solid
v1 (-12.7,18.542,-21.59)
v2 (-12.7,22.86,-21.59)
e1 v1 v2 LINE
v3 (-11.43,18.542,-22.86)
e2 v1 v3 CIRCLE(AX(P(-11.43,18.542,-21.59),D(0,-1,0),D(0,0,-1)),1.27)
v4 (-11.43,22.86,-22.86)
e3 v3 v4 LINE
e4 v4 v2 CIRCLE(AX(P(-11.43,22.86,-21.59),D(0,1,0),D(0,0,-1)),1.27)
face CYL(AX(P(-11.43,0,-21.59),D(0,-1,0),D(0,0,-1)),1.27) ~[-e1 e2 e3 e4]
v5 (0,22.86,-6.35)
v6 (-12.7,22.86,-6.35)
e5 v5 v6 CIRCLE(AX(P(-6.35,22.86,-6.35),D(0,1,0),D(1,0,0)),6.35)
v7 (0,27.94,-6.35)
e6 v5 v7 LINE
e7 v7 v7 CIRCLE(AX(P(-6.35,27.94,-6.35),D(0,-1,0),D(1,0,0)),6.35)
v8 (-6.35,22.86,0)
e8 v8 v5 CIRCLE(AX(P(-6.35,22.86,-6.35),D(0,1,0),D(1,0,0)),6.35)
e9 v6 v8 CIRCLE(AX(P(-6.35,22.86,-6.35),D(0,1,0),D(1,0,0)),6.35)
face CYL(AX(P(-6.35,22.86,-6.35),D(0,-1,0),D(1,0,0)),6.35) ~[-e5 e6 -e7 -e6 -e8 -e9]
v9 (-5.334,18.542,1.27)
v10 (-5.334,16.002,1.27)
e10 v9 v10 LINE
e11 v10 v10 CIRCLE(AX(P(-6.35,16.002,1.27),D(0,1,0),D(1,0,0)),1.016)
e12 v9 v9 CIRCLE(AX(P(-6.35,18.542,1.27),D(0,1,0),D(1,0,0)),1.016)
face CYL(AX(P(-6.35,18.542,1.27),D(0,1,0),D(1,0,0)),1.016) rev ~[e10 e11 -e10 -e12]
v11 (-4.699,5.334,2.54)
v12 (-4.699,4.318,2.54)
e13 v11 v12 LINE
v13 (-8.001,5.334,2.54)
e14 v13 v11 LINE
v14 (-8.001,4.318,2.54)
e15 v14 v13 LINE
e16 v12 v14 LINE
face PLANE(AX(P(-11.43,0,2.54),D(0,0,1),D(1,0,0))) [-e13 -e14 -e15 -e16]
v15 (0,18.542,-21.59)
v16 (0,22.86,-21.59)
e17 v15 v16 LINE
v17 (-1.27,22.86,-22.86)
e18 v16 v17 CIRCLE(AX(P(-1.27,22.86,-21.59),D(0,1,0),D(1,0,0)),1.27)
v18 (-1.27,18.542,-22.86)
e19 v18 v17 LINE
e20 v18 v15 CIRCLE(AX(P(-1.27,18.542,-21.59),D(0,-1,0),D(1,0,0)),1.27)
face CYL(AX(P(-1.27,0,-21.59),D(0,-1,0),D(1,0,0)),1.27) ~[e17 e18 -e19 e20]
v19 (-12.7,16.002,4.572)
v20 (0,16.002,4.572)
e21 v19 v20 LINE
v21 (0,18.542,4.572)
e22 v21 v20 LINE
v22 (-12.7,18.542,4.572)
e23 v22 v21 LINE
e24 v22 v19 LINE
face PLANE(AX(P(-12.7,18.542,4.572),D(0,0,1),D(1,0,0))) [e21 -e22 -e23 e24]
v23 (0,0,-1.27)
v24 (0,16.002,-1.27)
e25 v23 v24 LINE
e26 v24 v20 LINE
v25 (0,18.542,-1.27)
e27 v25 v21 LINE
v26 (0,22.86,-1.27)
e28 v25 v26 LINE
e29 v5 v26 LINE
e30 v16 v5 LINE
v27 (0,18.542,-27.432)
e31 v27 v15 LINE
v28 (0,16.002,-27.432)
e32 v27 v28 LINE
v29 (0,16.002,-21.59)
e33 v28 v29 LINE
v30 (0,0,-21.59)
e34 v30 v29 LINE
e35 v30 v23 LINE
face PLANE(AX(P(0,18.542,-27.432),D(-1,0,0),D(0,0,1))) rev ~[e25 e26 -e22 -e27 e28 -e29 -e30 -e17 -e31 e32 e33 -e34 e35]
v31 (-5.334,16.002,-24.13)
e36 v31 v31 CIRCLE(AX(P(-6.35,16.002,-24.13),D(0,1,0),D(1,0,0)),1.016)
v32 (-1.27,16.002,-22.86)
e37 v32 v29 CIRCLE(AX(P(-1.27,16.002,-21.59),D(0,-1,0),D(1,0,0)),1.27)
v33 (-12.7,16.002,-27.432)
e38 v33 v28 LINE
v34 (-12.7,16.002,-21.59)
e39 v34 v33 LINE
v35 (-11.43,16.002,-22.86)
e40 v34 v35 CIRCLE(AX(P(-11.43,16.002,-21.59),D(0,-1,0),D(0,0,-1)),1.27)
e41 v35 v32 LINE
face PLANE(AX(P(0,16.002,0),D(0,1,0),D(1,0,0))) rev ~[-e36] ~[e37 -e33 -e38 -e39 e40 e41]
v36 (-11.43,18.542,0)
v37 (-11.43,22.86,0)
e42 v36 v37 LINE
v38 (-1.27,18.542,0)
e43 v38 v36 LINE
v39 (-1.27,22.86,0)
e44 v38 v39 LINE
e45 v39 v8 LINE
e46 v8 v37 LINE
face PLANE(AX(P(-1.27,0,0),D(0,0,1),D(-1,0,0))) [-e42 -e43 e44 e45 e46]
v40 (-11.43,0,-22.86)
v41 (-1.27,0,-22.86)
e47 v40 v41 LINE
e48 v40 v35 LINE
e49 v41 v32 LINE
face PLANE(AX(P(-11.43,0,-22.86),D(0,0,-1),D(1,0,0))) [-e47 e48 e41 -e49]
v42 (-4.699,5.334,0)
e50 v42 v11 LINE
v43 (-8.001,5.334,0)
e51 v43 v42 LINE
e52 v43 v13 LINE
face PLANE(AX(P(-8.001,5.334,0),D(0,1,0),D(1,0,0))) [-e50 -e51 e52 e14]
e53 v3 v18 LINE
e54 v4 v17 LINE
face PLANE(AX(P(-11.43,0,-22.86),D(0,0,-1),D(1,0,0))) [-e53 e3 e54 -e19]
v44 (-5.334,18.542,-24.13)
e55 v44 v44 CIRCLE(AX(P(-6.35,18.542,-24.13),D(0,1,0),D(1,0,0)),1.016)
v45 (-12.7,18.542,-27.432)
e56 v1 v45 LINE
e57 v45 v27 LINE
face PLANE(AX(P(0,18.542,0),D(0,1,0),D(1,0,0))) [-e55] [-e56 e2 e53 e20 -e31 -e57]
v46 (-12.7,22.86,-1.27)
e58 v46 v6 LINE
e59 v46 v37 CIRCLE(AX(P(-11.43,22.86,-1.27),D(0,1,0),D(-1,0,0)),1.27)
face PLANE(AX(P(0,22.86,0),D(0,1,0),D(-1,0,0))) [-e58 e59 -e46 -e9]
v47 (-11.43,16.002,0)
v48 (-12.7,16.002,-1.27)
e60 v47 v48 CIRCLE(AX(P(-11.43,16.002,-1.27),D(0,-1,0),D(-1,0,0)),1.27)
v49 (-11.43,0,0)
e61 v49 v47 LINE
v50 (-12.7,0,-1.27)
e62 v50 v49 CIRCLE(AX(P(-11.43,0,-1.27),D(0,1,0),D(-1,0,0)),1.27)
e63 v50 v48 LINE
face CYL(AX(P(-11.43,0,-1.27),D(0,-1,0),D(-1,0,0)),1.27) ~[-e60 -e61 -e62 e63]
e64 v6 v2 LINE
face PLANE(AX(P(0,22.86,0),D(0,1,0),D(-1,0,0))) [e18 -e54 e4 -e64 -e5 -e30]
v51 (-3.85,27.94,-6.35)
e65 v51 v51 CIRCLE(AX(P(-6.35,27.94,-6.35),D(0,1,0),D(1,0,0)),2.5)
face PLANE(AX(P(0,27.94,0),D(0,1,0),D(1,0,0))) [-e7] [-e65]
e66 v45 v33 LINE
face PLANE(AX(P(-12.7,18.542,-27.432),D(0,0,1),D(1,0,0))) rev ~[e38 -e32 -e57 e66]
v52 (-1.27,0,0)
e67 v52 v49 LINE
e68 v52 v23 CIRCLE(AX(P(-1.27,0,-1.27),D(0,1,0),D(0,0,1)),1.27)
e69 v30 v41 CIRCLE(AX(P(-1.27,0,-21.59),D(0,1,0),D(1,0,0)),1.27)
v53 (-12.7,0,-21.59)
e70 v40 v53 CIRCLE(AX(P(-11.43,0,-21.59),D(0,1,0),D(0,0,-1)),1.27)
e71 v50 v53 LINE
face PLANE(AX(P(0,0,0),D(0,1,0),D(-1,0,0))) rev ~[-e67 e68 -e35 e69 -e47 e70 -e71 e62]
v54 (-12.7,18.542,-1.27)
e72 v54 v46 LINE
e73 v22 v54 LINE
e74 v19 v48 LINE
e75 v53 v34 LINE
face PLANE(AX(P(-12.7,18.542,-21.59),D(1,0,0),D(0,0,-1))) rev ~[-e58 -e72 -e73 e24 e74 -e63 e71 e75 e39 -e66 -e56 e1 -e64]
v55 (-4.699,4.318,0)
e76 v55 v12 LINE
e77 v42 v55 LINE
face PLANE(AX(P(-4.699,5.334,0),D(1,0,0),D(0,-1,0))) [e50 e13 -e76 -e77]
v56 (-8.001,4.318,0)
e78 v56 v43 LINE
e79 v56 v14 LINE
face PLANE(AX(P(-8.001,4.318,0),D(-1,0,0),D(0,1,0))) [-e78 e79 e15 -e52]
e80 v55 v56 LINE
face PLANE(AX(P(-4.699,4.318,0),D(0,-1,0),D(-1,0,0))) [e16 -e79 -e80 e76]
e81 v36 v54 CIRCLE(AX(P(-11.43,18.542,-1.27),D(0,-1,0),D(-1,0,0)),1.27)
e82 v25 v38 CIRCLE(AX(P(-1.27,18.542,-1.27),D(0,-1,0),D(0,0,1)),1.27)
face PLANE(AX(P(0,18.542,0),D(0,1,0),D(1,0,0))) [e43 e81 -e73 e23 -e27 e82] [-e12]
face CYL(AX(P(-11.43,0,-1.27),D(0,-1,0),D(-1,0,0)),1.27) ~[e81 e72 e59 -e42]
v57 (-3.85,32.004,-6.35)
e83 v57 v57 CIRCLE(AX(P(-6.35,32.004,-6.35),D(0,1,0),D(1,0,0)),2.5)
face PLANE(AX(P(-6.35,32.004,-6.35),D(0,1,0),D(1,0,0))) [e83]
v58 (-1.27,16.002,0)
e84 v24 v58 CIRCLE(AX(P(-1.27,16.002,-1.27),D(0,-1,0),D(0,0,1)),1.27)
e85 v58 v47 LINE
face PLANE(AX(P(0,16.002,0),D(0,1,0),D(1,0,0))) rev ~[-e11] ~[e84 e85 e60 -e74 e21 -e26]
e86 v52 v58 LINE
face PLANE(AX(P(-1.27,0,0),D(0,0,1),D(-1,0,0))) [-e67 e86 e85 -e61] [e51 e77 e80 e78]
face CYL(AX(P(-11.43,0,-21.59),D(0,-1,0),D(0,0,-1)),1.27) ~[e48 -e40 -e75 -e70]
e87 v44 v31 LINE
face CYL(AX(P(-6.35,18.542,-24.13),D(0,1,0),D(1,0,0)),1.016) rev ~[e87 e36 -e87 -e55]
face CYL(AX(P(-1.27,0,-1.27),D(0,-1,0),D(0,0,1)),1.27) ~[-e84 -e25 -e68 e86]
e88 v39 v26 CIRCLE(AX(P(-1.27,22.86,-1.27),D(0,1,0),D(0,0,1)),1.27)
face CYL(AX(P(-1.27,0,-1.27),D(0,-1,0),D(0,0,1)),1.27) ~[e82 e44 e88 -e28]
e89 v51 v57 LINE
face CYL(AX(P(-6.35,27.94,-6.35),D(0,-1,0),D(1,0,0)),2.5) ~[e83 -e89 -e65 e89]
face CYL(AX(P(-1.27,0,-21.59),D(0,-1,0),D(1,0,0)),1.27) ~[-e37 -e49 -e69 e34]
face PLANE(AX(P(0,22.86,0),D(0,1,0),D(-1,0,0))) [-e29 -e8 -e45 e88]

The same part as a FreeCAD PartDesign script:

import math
import FreeCAD as App
import Part
import Sketcher

V = App.Vector
Q = App.Units.Quantity

doc = App.newDocument("Part")
params = doc.addObject("Spreadsheet::Sheet", "Params")
for row, (alias, value) in enumerate([
    ("sketch1_radius", "0.05 in"),
    ("pad1_length", "0.9 in"),
    ("sketch2_diameter", "0.5 in"),
    ("pad2_length", "0.2 in"),
    ("sketch3_diameter", "0.08 in"),
    ("sketch3_width", "0.5 in"),
    ("sketch3_height", "1.26 in"),
    ("pad3_length", "0.1 in"),
    ("sketch4_width", "0.13 in"),
    ("sketch4_height", "0.04 in"),
    ("pad4_length", "0.1 in"),
    ("pad5_length", "0.16 in"),
], start=1):
    params.set(f"A{row}", alias)
    params.set(f"B{row}", "=" + value)
    params.setAlias(f"B{row}", alias)

body = doc.addObject("PartDesign::Body", "Body")

sketch1 = body.newObject("Sketcher::SketchObject", "Sketch")
sketch1.AttachmentSupport = (doc.getObject("XZ_Plane"), [""])
sketch1.MapMode = "FlatFace"
sketch1.addGeometry([
    Part.LineSegment(V(-11.4, 0, 0), V(-1.3, 0, 0)),
    Part.ArcOfCircle(Part.Circle(V(-1.3, -1.3, 0), V(0, 0, 1), 1.3), math.radians(0), math.radians(90)),
    Part.LineSegment(V(0, -1.3, 0), V(0, -21.6, 0)),
    Part.ArcOfCircle(Part.Circle(V(-1.3, -21.6, 0), V(0, 0, 1), 1.3), math.radians(-90), math.radians(0)),
    Part.LineSegment(V(-1.3, -22.9, 0), V(-11.4, -22.9, 0)),
    Part.ArcOfCircle(Part.Circle(V(-11.4, -21.6, 0), V(0, 0, 1), 1.3), math.radians(180), math.radians(270)),
    Part.LineSegment(V(-12.7, -21.6, 0), V(-12.7, -1.3, 0)),
    Part.ArcOfCircle(Part.Circle(V(-11.4, -1.3, 0), V(0, 0, 1), 1.3), math.radians(90), math.radians(180)),
], False)
sketch1.addConstraint([
    Sketcher.Constraint("Tangent", 0, 2, 1, 2),
    Sketcher.Constraint("Tangent", 1, 1, 2, 1),
    Sketcher.Constraint("Tangent", 2, 2, 3, 2),
    Sketcher.Constraint("Tangent", 3, 1, 4, 1),
    Sketcher.Constraint("Tangent", 4, 2, 5, 2),
    Sketcher.Constraint("Tangent", 5, 1, 6, 1),
    Sketcher.Constraint("Tangent", 6, 2, 7, 2),
    Sketcher.Constraint("Tangent", 7, 1, 0, 1),
    Sketcher.Constraint("Horizontal", 0),
    Sketcher.Constraint("Vertical", 2),
    Sketcher.Constraint("Horizontal", 4),
    Sketcher.Constraint("Vertical", 6),
    Sketcher.Constraint("Equal", 1, 3),
    Sketcher.Constraint("Equal", 3, 5),
    Sketcher.Constraint("Equal", 5, 7),
    Sketcher.Constraint("PointOnObject", 0, 2, -1),
    Sketcher.Constraint("PointOnObject", 1, 1, -2),
    Sketcher.Constraint("Radius", 1, Q("0.05 in")),
    Sketcher.Constraint("DistanceY", 3, 1, -1, 1, Q("0.9 in")),
    Sketcher.Constraint("DistanceX", 5, 1, -1, 1, Q("0.5 in")),
])
sketch1.setExpression("Constraints[17]", "Params.sketch1_radius")
pad1 = body.newObject("PartDesign::Pad", "Pad")
pad1.Profile = sketch1
pad1.setExpression("Length", "Params.pad1_length")
pad1.Reversed = True

sketch2 = body.newObject("Sketcher::SketchObject", "Sketch001")
sketch2.AttachmentSupport = (doc.getObject("XZ_Plane"), [""])
sketch2.MapMode = "FlatFace"
sketch2.AttachmentOffset = App.Placement(V(0, 0, -0.9 * 25.4), App.Rotation())
sketch2.addGeometry(Part.Circle(V(-6, -6, 0), V(0, 0, 1), 6), False)
sketch2.addConstraint([
    Sketcher.Constraint("Diameter", 0, Q("0.5 in")),
    Sketcher.Constraint("DistanceX", 0, 3, -1, 1, Q("0.25 in")),
    Sketcher.Constraint("DistanceY", 0, 3, -1, 1, Q("0.25 in")),
])
sketch2.setExpression("Constraints[0]", "Params.sketch2_diameter")
pad2 = body.newObject("PartDesign::Pad", "Pad001")
pad2.Profile = sketch2
pad2.setExpression("Length", "Params.pad2_length")
pad2.Reversed = True

sketch3 = body.newObject("Sketcher::SketchObject", "Sketch002")
sketch3.AttachmentSupport = (doc.getObject("XZ_Plane"), [""])
sketch3.MapMode = "FlatFace"
sketch3.AttachmentOffset = App.Placement(V(0, 0, -0.73 * 25.4), App.Rotation())
sketch3.addGeometry([
    Part.LineSegment(V(0, -27.4, 0), V(-12.7, -27.4, 0)),
    Part.LineSegment(V(-12.7, -27.4, 0), V(-12.7, 4.6, 0)),
    Part.LineSegment(V(-12.7, 4.6, 0), V(0, 4.6, 0)),
    Part.LineSegment(V(0, 4.6, 0), V(0, -27.4, 0)),
    Part.Circle(V(-6.3, 1.3, 0), V(0, 0, 1), 1),
    Part.Circle(V(-6.3, -24.1, 0), V(0, 0, 1), 1),
], False)
sketch3.addConstraint([
    Sketcher.Constraint("Coincident", 0, 2, 1, 1),
    Sketcher.Constraint("Coincident", 1, 2, 2, 1),
    Sketcher.Constraint("Coincident", 2, 2, 3, 1),
    Sketcher.Constraint("Coincident", 3, 2, 0, 1),
    Sketcher.Constraint("Horizontal", 0),
    Sketcher.Constraint("Vertical", 1),
    Sketcher.Constraint("Horizontal", 2),
    Sketcher.Constraint("Vertical", 3),
    Sketcher.Constraint("Equal", 4, 5),
    Sketcher.Constraint("PointOnObject", 2, 2, -2),
    Sketcher.Constraint("Vertical", 4, 3, 5, 3),
    Sketcher.Constraint("Diameter", 4, Q("0.08 in")),
    Sketcher.Constraint("DistanceY", 5, 3, 4, 3, Q("1 in")),
    Sketcher.Constraint("DistanceX", 0, 2, 0, 1, Q("0.5 in")),
    Sketcher.Constraint("DistanceY", 1, 1, 1, 2, Q("1.26 in")),
    Sketcher.Constraint("DistanceX", 4, 3, -1, 1, Q("0.25 in")),
    Sketcher.Constraint("DistanceY", -1, 1, 4, 3, Q("0.05 in")),
    Sketcher.Constraint("DistanceY", 0, 2, -1, 1, Q("1.08 in")),
])
sketch3.setExpression("Constraints[11]", "Params.sketch3_diameter")
sketch3.setExpression("Constraints[13]", "Params.sketch3_width")
sketch3.setExpression("Constraints[14]", "Params.sketch3_height")
pad3 = body.newObject("PartDesign::Pad", "Pad002")
pad3.Profile = sketch3
pad3.setExpression("Length", "Params.pad3_length")

sketch4 = body.newObject("Sketcher::SketchObject", "Sketch003")
sketch4.AttachmentSupport = (doc.getObject("XY_Plane"), [""])
sketch4.MapMode = "FlatFace"
sketch4.addGeometry([
    Part.LineSegment(V(-4.7, 5.3, 0), V(-8, 5.3, 0)),
    Part.LineSegment(V(-8, 5.3, 0), V(-8, 4.3, 0)),
    Part.LineSegment(V(-8, 4.3, 0), V(-4.7, 4.3, 0)),
    Part.LineSegment(V(-4.7, 4.3, 0), V(-4.7, 5.3, 0)),
], False)
sketch4.addConstraint([
    Sketcher.Constraint("Coincident", 0, 2, 1, 1),
    Sketcher.Constraint("Coincident", 1, 2, 2, 1),
    Sketcher.Constraint("Coincident", 2, 2, 3, 1),
    Sketcher.Constraint("Coincident", 3, 2, 0, 1),
    Sketcher.Constraint("Horizontal", 0),
    Sketcher.Constraint("Vertical", 1),
    Sketcher.Constraint("Horizontal", 2),
    Sketcher.Constraint("Vertical", 3),
    Sketcher.Constraint("DistanceX", 0, 2, 0, 1, Q("0.13 in")),
    Sketcher.Constraint("DistanceY", 1, 2, 1, 1, Q("0.04 in")),
    Sketcher.Constraint("DistanceY", -1, 1, 1, 2, Q("0.17 in")),
    Sketcher.Constraint("DistanceX", 0, 2, -1, 1, Q("0.315 in")),
])
sketch4.setExpression("Constraints[8]", "Params.sketch4_width")
sketch4.setExpression("Constraints[9]", "Params.sketch4_height")
pad4 = body.newObject("PartDesign::Pad", "Pad003")
pad4.Profile = sketch4
pad4.setExpression("Length", "Params.pad4_length")

sketch5 = body.newObject("Sketcher::SketchObject", "Sketch004")
sketch5.AttachmentSupport = (doc.getObject("XZ_Plane"), [""])
sketch5.MapMode = "FlatFace"
sketch5.AttachmentOffset = App.Placement(V(0, 0, -1.1 * 25.4), App.Rotation())
sketch5.addGeometry(Part.Circle(V(-6.3, -6.3, 0), V(0, 0, 1), 2.5), False)
sketch5.addConstraint([
    Sketcher.Constraint("Diameter", 0, 5.0),
    Sketcher.Constraint("DistanceX", 0, 3, -1, 1, Q("0.25 in")),
    Sketcher.Constraint("DistanceY", 0, 3, -1, 1, Q("0.25 in")),
])
pad5 = body.newObject("PartDesign::Pad", "Pad004")
pad5.Profile = sketch5
pad5.setExpression("Length", "Params.pad5_length")
pad5.Reversed = True

doc.recompute()
